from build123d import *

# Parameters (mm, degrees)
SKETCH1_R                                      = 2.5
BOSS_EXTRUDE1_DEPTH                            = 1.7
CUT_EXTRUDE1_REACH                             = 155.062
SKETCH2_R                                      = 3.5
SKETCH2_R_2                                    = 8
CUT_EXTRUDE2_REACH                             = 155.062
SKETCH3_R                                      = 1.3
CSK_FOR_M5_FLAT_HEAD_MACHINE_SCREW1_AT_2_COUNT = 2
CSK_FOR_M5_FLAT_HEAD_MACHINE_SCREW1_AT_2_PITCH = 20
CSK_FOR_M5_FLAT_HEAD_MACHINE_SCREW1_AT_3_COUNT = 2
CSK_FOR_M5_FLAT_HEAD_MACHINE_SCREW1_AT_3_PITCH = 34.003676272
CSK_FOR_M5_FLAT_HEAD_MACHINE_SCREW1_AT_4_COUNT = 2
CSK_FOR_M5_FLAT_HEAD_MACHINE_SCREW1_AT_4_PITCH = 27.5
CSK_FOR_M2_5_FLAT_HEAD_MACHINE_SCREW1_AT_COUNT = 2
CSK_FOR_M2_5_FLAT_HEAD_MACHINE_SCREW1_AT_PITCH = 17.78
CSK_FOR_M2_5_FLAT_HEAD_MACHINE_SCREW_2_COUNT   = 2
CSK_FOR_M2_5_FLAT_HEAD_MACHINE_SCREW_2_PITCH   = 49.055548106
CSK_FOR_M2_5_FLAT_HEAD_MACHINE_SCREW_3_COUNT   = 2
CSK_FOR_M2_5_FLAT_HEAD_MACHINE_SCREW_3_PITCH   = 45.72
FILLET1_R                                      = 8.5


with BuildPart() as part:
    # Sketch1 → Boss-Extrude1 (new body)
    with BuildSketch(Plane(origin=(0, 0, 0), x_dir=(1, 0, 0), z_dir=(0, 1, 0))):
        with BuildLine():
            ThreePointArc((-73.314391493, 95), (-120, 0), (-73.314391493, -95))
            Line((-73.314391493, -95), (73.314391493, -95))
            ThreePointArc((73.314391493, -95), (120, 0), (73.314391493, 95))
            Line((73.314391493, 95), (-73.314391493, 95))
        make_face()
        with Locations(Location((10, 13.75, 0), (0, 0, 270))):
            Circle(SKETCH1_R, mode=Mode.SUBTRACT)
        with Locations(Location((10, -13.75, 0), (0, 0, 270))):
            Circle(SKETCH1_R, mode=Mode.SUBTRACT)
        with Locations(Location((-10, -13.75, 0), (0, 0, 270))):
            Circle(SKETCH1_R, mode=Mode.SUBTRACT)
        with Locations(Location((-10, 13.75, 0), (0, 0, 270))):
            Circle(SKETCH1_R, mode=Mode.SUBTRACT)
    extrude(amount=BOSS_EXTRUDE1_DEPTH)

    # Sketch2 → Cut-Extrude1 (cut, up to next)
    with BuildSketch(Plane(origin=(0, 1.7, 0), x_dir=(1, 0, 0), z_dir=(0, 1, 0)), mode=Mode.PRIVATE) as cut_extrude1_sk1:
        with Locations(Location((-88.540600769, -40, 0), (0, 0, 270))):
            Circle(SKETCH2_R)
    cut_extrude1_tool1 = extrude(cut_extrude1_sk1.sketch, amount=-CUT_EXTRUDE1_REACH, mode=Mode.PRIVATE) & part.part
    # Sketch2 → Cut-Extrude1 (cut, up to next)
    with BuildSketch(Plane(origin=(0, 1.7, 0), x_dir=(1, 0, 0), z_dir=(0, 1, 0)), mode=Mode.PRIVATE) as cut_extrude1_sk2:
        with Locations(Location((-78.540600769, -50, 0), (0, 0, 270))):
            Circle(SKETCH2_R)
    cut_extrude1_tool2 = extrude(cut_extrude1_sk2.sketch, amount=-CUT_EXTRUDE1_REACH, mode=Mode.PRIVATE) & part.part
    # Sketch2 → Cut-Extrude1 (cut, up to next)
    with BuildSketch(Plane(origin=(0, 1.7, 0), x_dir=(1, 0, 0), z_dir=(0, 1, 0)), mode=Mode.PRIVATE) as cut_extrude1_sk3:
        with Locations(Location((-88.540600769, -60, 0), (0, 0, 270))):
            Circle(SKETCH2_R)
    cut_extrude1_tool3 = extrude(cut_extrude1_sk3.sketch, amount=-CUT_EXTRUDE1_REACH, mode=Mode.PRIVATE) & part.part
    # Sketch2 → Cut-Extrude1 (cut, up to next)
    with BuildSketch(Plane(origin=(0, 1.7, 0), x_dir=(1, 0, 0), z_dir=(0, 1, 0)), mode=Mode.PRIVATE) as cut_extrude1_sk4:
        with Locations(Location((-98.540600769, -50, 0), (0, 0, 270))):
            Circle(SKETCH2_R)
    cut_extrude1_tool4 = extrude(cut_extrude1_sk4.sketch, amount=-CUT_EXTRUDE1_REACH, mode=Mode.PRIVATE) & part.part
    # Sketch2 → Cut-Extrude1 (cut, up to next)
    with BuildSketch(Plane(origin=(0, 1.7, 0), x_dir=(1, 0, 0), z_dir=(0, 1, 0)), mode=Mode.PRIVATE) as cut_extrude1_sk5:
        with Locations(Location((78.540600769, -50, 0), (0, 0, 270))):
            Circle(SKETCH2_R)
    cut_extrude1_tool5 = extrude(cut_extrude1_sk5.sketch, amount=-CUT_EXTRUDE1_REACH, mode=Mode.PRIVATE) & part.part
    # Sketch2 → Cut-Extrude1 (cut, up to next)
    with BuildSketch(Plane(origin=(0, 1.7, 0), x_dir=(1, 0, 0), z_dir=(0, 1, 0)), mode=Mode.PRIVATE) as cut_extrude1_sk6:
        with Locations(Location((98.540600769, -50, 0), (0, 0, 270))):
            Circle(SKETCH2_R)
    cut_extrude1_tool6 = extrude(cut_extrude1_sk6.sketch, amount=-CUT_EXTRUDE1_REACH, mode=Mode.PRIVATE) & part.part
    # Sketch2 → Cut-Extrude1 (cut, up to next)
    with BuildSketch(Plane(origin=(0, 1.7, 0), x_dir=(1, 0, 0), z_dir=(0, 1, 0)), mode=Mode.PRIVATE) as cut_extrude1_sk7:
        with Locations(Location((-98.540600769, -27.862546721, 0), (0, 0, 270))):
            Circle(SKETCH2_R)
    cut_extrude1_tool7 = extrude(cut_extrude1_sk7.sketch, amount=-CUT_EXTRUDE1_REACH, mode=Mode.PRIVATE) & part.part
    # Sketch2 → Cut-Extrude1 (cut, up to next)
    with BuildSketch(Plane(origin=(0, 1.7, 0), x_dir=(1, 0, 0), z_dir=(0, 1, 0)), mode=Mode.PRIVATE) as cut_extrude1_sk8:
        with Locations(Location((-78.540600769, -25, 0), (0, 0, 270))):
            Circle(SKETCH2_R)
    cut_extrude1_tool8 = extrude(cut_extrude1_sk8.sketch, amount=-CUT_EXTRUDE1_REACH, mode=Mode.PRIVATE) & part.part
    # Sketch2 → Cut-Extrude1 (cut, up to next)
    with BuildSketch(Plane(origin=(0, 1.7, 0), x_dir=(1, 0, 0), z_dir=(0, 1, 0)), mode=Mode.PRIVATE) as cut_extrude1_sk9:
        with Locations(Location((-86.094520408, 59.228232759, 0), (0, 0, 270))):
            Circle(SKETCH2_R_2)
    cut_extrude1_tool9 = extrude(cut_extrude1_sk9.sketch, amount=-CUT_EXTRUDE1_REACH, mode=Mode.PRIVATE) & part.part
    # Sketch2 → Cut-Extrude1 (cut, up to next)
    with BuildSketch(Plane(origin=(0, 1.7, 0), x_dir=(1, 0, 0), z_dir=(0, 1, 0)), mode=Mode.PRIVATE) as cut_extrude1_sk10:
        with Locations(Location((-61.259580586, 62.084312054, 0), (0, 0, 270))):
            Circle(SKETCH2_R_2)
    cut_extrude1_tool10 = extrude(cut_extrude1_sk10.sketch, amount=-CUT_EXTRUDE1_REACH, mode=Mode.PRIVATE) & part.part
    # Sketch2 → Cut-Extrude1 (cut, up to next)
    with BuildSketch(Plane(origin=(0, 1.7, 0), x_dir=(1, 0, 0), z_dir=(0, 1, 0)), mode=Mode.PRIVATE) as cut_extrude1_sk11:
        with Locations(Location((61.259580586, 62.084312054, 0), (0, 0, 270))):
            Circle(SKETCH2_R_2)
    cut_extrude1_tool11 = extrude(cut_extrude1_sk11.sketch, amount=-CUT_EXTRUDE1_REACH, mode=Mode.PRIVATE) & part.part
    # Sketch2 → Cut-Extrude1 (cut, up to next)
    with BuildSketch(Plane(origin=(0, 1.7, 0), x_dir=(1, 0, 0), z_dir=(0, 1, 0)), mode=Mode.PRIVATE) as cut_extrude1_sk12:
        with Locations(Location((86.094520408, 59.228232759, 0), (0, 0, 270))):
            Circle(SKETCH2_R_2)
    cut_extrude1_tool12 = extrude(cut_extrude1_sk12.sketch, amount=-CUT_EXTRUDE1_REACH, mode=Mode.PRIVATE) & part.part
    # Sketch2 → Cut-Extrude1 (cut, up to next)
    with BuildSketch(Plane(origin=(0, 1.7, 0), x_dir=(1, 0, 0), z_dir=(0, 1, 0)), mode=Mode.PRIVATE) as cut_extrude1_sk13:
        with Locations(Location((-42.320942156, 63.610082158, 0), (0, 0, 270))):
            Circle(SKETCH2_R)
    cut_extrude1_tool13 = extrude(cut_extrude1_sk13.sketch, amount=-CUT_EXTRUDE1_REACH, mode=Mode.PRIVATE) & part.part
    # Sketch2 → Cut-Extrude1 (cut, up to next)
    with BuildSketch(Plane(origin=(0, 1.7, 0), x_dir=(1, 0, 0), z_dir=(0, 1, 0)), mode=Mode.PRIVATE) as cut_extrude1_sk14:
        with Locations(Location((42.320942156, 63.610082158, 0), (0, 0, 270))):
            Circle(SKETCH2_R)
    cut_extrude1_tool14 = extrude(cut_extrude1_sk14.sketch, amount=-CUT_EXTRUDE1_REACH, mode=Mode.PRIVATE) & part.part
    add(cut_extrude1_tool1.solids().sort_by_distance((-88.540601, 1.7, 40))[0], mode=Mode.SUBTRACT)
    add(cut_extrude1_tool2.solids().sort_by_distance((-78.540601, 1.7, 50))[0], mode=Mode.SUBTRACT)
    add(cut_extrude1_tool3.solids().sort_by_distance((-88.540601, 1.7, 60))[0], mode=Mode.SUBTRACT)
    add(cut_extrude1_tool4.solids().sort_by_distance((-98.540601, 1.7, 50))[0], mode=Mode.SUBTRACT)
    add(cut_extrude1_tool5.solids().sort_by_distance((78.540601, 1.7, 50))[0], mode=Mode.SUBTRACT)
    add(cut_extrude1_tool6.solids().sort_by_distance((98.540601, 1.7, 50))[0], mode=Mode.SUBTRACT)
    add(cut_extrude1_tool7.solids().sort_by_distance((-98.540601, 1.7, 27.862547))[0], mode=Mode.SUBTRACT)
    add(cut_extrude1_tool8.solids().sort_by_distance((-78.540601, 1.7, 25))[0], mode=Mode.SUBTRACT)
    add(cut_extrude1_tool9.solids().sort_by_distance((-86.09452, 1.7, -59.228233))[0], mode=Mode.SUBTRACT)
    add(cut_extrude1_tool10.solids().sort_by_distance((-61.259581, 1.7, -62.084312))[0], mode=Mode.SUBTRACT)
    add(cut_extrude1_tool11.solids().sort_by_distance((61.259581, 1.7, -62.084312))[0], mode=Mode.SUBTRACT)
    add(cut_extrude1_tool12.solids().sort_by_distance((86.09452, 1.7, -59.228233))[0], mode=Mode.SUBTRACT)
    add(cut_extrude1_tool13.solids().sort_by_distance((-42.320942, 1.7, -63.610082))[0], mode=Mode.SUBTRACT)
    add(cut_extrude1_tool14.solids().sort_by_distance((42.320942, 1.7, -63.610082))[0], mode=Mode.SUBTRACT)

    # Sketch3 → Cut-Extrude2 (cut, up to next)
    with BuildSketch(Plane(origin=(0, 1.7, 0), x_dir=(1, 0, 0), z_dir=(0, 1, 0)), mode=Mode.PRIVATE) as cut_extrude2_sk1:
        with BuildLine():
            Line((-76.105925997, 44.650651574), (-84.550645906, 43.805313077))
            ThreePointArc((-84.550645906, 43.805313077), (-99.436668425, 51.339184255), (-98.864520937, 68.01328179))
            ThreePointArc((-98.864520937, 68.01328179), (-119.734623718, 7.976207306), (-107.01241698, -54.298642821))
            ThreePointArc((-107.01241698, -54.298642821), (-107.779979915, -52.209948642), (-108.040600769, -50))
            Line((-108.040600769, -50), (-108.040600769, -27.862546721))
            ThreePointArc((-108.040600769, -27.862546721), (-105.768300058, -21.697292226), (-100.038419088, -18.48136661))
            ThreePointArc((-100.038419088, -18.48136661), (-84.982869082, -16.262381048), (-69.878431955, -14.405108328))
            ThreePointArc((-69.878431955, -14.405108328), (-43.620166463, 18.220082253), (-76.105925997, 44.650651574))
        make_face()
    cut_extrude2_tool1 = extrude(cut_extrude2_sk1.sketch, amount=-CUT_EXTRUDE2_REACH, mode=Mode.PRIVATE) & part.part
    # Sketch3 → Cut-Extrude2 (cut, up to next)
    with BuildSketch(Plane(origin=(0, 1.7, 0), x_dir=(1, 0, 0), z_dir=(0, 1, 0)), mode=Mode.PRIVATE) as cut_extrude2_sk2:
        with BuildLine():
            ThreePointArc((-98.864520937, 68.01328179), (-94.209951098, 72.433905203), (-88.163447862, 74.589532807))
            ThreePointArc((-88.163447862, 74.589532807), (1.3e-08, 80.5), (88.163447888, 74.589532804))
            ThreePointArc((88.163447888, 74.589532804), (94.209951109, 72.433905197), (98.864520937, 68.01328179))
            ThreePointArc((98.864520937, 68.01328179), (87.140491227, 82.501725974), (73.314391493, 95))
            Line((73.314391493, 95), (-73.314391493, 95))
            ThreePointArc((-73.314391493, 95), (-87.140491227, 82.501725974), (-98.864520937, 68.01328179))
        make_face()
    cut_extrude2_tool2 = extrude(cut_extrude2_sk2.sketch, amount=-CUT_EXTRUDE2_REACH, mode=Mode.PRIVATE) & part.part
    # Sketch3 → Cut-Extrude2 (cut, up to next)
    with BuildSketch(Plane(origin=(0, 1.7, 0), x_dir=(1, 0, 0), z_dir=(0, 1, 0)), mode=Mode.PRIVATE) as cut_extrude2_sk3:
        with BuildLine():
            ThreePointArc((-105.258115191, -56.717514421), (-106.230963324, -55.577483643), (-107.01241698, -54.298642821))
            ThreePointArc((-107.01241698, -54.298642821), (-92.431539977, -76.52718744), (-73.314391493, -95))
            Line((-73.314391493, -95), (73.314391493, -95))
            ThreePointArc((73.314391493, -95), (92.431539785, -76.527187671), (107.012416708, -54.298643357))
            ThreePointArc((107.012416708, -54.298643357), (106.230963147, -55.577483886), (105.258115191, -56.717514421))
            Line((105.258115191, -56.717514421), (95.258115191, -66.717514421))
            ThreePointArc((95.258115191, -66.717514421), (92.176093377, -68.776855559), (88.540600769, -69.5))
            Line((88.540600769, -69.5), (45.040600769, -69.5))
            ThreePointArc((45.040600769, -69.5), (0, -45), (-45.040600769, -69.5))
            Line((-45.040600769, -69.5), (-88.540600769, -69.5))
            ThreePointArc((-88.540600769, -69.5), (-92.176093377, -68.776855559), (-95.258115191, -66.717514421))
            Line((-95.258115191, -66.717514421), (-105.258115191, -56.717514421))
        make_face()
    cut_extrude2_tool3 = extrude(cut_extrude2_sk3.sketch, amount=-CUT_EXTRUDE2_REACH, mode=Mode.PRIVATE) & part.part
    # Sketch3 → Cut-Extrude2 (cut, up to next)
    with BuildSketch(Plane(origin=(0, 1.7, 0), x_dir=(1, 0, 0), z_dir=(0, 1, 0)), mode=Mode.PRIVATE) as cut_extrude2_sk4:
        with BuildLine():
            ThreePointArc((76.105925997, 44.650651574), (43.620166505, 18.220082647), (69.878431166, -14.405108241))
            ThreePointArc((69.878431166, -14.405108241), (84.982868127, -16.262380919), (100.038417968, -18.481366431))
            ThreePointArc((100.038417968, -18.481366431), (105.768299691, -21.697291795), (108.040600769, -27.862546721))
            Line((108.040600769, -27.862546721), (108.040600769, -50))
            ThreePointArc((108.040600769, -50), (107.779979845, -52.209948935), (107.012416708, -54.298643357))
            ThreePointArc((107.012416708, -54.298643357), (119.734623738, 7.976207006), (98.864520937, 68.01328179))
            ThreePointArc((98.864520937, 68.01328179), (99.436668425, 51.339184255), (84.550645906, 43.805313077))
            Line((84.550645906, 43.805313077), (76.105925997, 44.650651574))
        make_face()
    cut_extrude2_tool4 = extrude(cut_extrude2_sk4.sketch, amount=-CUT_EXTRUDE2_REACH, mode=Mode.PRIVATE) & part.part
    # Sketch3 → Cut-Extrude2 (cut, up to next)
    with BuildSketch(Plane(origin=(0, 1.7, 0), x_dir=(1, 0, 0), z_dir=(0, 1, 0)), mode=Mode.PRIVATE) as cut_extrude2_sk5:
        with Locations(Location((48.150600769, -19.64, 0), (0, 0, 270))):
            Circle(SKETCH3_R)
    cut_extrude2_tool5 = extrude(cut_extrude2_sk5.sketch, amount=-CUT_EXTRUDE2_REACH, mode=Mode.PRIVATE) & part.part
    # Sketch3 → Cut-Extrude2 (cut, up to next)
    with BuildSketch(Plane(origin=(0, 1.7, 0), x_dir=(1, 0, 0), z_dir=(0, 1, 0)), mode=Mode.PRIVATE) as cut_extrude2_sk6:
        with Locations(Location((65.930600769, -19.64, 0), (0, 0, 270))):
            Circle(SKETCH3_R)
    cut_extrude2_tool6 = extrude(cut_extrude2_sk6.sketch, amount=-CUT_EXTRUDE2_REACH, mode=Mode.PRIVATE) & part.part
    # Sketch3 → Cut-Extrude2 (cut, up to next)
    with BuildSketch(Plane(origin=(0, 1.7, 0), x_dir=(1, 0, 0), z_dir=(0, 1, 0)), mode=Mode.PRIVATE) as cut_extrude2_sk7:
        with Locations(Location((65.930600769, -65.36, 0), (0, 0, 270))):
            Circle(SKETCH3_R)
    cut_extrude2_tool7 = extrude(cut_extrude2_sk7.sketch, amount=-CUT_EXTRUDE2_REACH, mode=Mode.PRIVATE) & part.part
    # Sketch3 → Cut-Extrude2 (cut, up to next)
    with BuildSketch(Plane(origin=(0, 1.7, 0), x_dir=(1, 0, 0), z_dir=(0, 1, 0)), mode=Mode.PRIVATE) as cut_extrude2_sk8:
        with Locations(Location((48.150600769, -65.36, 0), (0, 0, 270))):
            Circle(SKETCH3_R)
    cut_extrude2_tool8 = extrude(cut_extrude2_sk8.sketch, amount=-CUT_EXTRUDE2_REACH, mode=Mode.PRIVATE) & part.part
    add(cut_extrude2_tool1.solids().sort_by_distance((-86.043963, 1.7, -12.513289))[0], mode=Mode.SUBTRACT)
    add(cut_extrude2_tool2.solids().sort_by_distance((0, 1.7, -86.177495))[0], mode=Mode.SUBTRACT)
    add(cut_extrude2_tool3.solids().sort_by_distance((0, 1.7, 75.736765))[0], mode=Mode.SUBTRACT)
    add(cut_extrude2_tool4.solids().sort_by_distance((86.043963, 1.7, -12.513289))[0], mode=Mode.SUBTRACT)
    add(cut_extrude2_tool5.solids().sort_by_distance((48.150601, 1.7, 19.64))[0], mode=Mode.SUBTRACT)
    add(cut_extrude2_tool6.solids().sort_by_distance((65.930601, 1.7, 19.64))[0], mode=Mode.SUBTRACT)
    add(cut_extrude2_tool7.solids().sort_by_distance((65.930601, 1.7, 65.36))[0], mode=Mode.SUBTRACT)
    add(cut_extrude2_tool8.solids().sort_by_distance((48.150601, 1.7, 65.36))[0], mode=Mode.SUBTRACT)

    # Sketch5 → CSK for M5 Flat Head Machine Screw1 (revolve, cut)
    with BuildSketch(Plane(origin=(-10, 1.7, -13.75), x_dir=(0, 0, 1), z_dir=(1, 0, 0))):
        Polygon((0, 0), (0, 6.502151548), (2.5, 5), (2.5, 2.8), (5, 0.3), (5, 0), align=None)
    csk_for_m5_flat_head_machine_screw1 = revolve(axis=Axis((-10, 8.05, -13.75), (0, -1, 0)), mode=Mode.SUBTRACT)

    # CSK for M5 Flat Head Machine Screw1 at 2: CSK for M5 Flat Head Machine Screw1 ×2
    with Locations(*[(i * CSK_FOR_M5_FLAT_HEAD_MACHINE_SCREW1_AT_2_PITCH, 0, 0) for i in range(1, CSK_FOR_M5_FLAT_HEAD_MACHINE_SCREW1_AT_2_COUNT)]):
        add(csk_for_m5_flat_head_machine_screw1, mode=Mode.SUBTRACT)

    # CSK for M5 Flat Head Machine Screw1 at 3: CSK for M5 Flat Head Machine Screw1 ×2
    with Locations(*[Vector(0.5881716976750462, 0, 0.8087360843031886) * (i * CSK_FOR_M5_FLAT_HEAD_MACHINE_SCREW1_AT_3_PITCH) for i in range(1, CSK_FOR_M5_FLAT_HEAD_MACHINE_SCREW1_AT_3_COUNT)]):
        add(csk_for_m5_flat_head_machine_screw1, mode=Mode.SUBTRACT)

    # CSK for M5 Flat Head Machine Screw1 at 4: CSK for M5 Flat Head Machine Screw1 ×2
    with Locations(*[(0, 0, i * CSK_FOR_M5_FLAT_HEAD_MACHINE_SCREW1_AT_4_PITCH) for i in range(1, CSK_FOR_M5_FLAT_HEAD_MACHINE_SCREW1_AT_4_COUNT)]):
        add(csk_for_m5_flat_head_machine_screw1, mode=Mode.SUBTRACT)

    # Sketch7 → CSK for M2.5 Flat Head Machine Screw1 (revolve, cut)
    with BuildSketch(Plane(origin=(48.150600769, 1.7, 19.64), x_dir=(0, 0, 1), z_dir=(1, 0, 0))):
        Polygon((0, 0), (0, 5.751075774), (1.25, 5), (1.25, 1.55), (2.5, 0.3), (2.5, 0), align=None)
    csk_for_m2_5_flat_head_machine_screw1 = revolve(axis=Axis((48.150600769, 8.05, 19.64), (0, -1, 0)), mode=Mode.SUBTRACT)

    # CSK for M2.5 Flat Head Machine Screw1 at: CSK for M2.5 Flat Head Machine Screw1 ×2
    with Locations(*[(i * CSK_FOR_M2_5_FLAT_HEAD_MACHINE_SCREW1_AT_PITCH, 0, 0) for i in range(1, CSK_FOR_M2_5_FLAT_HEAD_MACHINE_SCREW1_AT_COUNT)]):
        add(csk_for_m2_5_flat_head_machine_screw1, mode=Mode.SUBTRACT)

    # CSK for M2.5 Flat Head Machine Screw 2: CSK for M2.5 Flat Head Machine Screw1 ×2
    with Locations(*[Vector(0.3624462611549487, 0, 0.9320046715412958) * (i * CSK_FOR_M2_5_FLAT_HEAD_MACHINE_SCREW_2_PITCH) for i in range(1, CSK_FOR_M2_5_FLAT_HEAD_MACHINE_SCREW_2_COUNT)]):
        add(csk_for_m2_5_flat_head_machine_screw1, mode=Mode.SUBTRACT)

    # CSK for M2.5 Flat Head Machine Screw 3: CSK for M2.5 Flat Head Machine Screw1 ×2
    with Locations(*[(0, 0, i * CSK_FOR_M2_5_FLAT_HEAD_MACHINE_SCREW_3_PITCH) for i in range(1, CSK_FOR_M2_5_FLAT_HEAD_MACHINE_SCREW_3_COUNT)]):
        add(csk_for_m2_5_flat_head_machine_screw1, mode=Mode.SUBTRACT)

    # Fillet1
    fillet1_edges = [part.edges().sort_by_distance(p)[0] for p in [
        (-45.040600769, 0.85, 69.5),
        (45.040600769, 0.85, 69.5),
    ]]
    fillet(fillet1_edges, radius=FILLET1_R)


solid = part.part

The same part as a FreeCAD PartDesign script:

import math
import FreeCAD as App
import Part
import Sketcher

V = App.Vector
Q = App.Units.Quantity


def edges_at(feature, points):
    """Names of the edges that pass closest to the given points."""
    edges = feature.Shape.Edges
    near = lambda p: min(range(len(edges)), key=lambda i: edges[i].distToShape(Part.Vertex(*p))[0])
    return sorted({f"Edge{near(p) + 1}" for p in points})


def add_polygon(sketch, points):
    """Adds a closed chain of lines whose ends are joined by coincident constraints."""
    first, n = sketch.GeometryCount, len(points)
    for a, b in zip(points, points[1:] + points[:1]):
        sketch.addGeometry(Part.LineSegment(App.Vector(*a, 0), App.Vector(*b, 0)), False)
    for i in range(n):
        sketch.addConstraint(Sketcher.Constraint("Coincident", first + i, 2, first + (i + 1) % n, 1))

doc = App.newDocument("Part")
body = doc.addObject("PartDesign::Body", "Body")

# Sketch on XZ plane
sketch1 = body.newObject("Sketcher::SketchObject", "Sketch")
sketch1.AttachmentSupport = (doc.getObject("XZ_Plane"), [""])
sketch1.MapMode = "FlatFace"
sketch1.addGeometry(Part.ArcOfCircle(Part.Circle(V(0, 0, 0), V(0, 0, 1), 120), math.radians(128), math.radians(232)), False)
sketch1.addGeometry(Part.LineSegment(V(-73.3, 95, 0), V(73.3, 95, 0)), False)
sketch1.addGeometry(Part.ArcOfCircle(Part.Circle(V(0, 0, 0), V(0, 0, 1), 120), math.radians(-52), math.radians(52)), False)
sketch1.addGeometry(Part.LineSegment(V(73.3, -95, 0), V(-73.3, -95, 0)), False)
sketch1.addGeometry(Part.Circle(V(-10, 13.8, 0), V(0, 0, 1), 2.5), False)
sketch1.addGeometry(Part.Circle(V(10, 13.8, 0), V(0, 0, 1), 2.5), False)
sketch1.addGeometry(Part.Circle(V(-10, -13.8, 0), V(0, 0, 1), 2.5), False)
sketch1.addGeometry(Part.Circle(V(10, -13.8, 0), V(0, 0, 1), 2.5), False)
sketch1.addConstraint(Sketcher.Constraint("Coincident", 0, 1, 1, 1))
sketch1.addConstraint(Sketcher.Constraint("Coincident", 1, 2, 2, 2))
sketch1.addConstraint(Sketcher.Constraint("Coincident", 2, 1, 3, 1))
sketch1.addConstraint(Sketcher.Constraint("Coincident", 3, 2, 0, 2))
sketch1.addConstraint(Sketcher.Constraint("Horizontal", 1))
sketch1.addConstraint(Sketcher.Constraint("Horizontal", 3))
sketch1.addConstraint(Sketcher.Constraint("Coincident", 0, 3, -1, 1))
sketch1.addConstraint(Sketcher.Constraint("Coincident", 2, 3, -1, 1))
sketch1.addConstraint(Sketcher.Constraint("Equal", 0, 2))
sketch1.addConstraint(Sketcher.Constraint("Equal", 4, 5))
sketch1.addConstraint(Sketcher.Constraint("Equal", 5, 6))
sketch1.addConstraint(Sketcher.Constraint("Equal", 6, 7))
sketch1.addConstraint(Sketcher.Constraint("Symmetric", 5, 3, 6, 3, -1, 1))
sketch1.addConstraint(Sketcher.Constraint("Symmetric", 4, 3, 7, 3, -1, 1))
sketch1.addConstraint(Sketcher.Constraint("Symmetric", 4, 3, 5, 3, -2))
sketch1.addConstraint(Sketcher.Constraint("Vertical", 1, 2, 2, 1))
sketch1.addConstraint(Sketcher.Constraint("Diameter", 4, Q("5 mm")))
sketch1.addConstraint(Sketcher.Constraint("Radius", 0, Q("120 mm")))
sketch1.addConstraint(Sketcher.Constraint("DistanceX", 4, 3, -1, 1, Q("10 mm")))
sketch1.addConstraint(Sketcher.Constraint("DistanceY", -1, 1, 0, 1, Q("95 mm")))
sketch1.addConstraint(Sketcher.Constraint("DistanceY", 6, 3, 4, 3, Q("27.5 mm")))
pad1 = body.newObject("PartDesign::Pad", "Pad")
pad1.Profile = sketch1
pad1.Length = 1.7
pad1.Reversed = True

# Sketch on XZ plane
sketch2 = body.newObject("Sketcher::SketchObject", "Sketch001")
sketch2.AttachmentSupport = (doc.getObject("XZ_Plane"), [""])
sketch2.MapMode = "FlatFace"
sketch2.AttachmentOffset = App.Placement(V(0, 0, -1.7), App.Rotation())
sketch2.addGeometry(Part.Circle(V(-88.5, 40, 0), V(0, 0, 1), 3.5), False)
sketch2.addConstraint(Sketcher.Constraint("Diameter", 0, Q("7 mm")))
sketch2.addConstraint(Sketcher.Constraint("DistanceY", -1, 1, 0, 3, Q("40 mm")))
sketch2.addConstraint(Sketcher.Constraint("DistanceX", 0, 3, -1, 1, Q("88.540601 mm")))
pocket1 = body.newObject("PartDesign::Pocket", "Pocket")
pocket1.Profile = sketch2
pocket1.Type = "UpToFirst"
pocket1.Reversed = True

# Sketch on XZ plane
sketch3 = body.newObject("Sketcher::SketchObject", "Sketch002")
sketch3.AttachmentSupport = (doc.getObject("XZ_Plane"), [""])
sketch3.MapMode = "FlatFace"
sketch3.AttachmentOffset = App.Placement(V(0, 0, -1.7), App.Rotation())
sketch3.addGeometry(Part.Circle(V(-78.5, 50, 0), V(0, 0, 1), 3.5), False)
sketch3.addConstraint(Sketcher.Constraint("Diameter", 0, Q("7 mm")))
sketch3.addConstraint(Sketcher.Constraint("DistanceY", -1, 1, 0, 3, Q("50 mm")))
sketch3.addConstraint(Sketcher.Constraint("DistanceX", 0, 3, -1, 1, Q("78.540601 mm")))
pocket2 = body.newObject("PartDesign::Pocket", "Pocket001")
pocket2.Profile = sketch3
pocket2.Type = "UpToFirst"
pocket2.Reversed = True

# Sketch on XZ plane
sketch4 = body.newObject("Sketcher::SketchObject", "Sketch003")
sketch4.AttachmentSupport = (doc.getObject("XZ_Plane"), [""])
sketch4.MapMode = "FlatFace"
sketch4.AttachmentOffset = App.Placement(V(0, 0, -1.7), App.Rotation())
sketch4.addGeometry(Part.Circle(V(-88.5, 60, 0), V(0, 0, 1), 3.5), False)
sketch4.addConstraint(Sketcher.Constraint("Diameter", 0, Q("7 mm")))
sketch4.addConstraint(Sketcher.Constraint("DistanceY", -1, 1, 0, 3, Q("60 mm")))
sketch4.addConstraint(Sketcher.Constraint("DistanceX", 0, 3, -1, 1, Q("88.540601 mm")))
pocket3 = body.newObject("PartDesign::Pocket", "Pocket002")
pocket3.Profile = sketch4
pocket3.Type = "UpToFirst"
pocket3.Reversed = True

# Sketch on XZ plane
sketch5 = body.newObject("Sketcher::SketchObject", "Sketch004")
sketch5.AttachmentSupport = (doc.getObject("XZ_Plane"), [""])
sketch5.MapMode = "FlatFace"
sketch5.AttachmentOffset = App.Placement(V(0, 0, -1.7), App.Rotation())
sketch5.addGeometry(Part.Circle(V(-98.5, 50, 0), V(0, 0, 1), 3.5), False)
sketch5.addConstraint(Sketcher.Constraint("Diameter", 0, Q("7 mm")))
sketch5.addConstraint(Sketcher.Constraint("DistanceY", -1, 1, 0, 3, Q("50 mm")))
sketch5.addConstraint(Sketcher.Constraint("DistanceX", 0, 3, -1, 1, Q("98.540601 mm")))
pocket4 = body.newObject("PartDesign::Pocket", "Pocket003")
pocket4.Profile = sketch5
pocket4.Type = "UpToFirst"
pocket4.Reversed = True

# Sketch on XZ plane
sketch6 = body.newObject("Sketcher::SketchObject", "Sketch005")
sketch6.AttachmentSupport = (doc.getObject("XZ_Plane"), [""])
sketch6.MapMode = "FlatFace"
sketch6.AttachmentOffset = App.Placement(V(0, 0, -1.7), App.Rotation())
sketch6.addGeometry(Part.Circle(V(78.5, 50, 0), V(0, 0, 1), 3.5), False)
sketch6.addConstraint(Sketcher.Constraint("Diameter", 0, Q("7 mm")))
sketch6.addConstraint(Sketcher.Constraint("DistanceY", -1, 1, 0, 3, Q("50 mm")))
sketch6.addConstraint(Sketcher.Constraint("DistanceX", -1, 1, 0, 3, Q("78.540601 mm")))
pocket5 = body.newObject("PartDesign::Pocket", "Pocket004")
pocket5.Profile = sketch6
pocket5.Type = "UpToFirst"
pocket5.Reversed = True

# Sketch on XZ plane
sketch7 = body.newObject("Sketcher::SketchObject", "Sketch006")
sketch7.AttachmentSupport = (doc.getObject("XZ_Plane"), [""])
sketch7.MapMode = "FlatFace"
sketch7.AttachmentOffset = App.Placement(V(0, 0, -1.7), App.Rotation())
sketch7.addGeometry(Part.Circle(V(98.5, 50, 0), V(0, 0, 1), 3.5), False)
sketch7.addConstraint(Sketcher.Constraint("Diameter", 0, Q("7 mm")))
sketch7.addConstraint(Sketcher.Constraint("DistanceY", -1, 1, 0, 3, Q("50 mm")))
sketch7.addConstraint(Sketcher.Constraint("DistanceX", -1, 1, 0, 3, Q("98.540601 mm")))
pocket6 = body.newObject("PartDesign::Pocket", "Pocket005")
pocket6.Profile = sketch7
pocket6.Type = "UpToFirst"
pocket6.Reversed = True

# Sketch on XZ plane
sketch8 = body.newObject("Sketcher::SketchObject", "Sketch007")
sketch8.AttachmentSupport = (doc.getObject("XZ_Plane"), [""])
sketch8.MapMode = "FlatFace"
sketch8.AttachmentOffset = App.Placement(V(0, 0, -1.7), App.Rotation())
sketch8.addGeometry(Part.Circle(V(-98.5, 27.9, 0), V(0, 0, 1), 3.5), False)
sketch8.addConstraint(Sketcher.Constraint("Diameter", 0, Q("7 mm")))
sketch8.addConstraint(Sketcher.Constraint("DistanceX", 0, 3, -1, 1, Q("98.540601 mm")))
sketch8.addConstraint(Sketcher.Constraint("DistanceY", -1, 1, 0, 3, Q("27.862547 mm")))
pocket7 = body.newObject("PartDesign::Pocket", "Pocket006")
pocket7.Profile = sketch8
pocket7.Type = "UpToFirst"
pocket7.Reversed = True

# Sketch on XZ plane
sketch9 = body.newObject("Sketcher::SketchObject", "Sketch008")
sketch9.AttachmentSupport = (doc.getObject("XZ_Plane"), [""])
sketch9.MapMode = "FlatFace"
sketch9.AttachmentOffset = App.Placement(V(0, 0, -1.7), App.Rotation())
sketch9.addGeometry(Part.Circle(V(-78.5, 25, 0), V(0, 0, 1), 3.5), False)
sketch9.addConstraint(Sketcher.Constraint("Diameter", 0, Q("7 mm")))
sketch9.addConstraint(Sketcher.Constraint("DistanceY", -1, 1, 0, 3, Q("25 mm")))
sketch9.addConstraint(Sketcher.Constraint("DistanceX", 0, 3, -1, 1, Q("78.540601 mm")))
pocket8 = body.newObject("PartDesign::Pocket", "Pocket007")
pocket8.Profile = sketch9
pocket8.Type = "UpToFirst"
pocket8.Reversed = True

# Sketch on XZ plane
sketch10 = body.newObject("Sketcher::SketchObject", "Sketch009")
sketch10.AttachmentSupport = (doc.getObject("XZ_Plane"), [""])
sketch10.MapMode = "FlatFace"
sketch10.AttachmentOffset = App.Placement(V(0, 0, -1.7), App.Rotation())
sketch10.addGeometry(Part.Circle(V(-86, -59, 0), V(0, 0, 1), 8), False)
sketch10.addConstraint(Sketcher.Constraint("Diameter", 0, Q("16 mm")))
sketch10.addConstraint(Sketcher.Constraint("DistanceX", 0, 3, -1, 1, Q("86.09452 mm")))
sketch10.addConstraint(Sketcher.Constraint("DistanceY", 0, 3, -1, 1, Q("59.228233 mm")))
pocket9 = body.newObject("PartDesign::Pocket", "Pocket008")
pocket9.Profile = sketch10
pocket9.Type = "UpToFirst"
pocket9.Reversed = True

# Sketch on XZ plane
sketch11 = body.newObject("Sketcher::SketchObject", "Sketch010")
sketch11.AttachmentSupport = (doc.getObject("XZ_Plane"), [""])
sketch11.MapMode = "FlatFace"
sketch11.AttachmentOffset = App.Placement(V(0, 0, -1.7), App.Rotation())
sketch11.addGeometry(Part.Circle(V(-61, -62, 0), V(0, 0, 1), 8), False)
sketch11.addConstraint(Sketcher.Constraint("Diameter", 0, Q("16 mm")))
sketch11.addConstraint(Sketcher.Constraint("DistanceX", 0, 3, -1, 1, Q("61.259581 mm")))
sketch11.addConstraint(Sketcher.Constraint("DistanceY", 0, 3, -1, 1, Q("62.084312 mm")))
pocket10 = body.newObject("PartDesign::Pocket", "Pocket009")
pocket10.Profile = sketch11
pocket10.Type = "UpToFirst"
pocket10.Reversed = True

# Sketch on XZ plane
sketch12 = body.newObject("Sketcher::SketchObject", "Sketch011")
sketch12.AttachmentSupport = (doc.getObject("XZ_Plane"), [""])
sketch12.MapMode = "FlatFace"
sketch12.AttachmentOffset = App.Placement(V(0, 0, -1.7), App.Rotation())
sketch12.addGeometry(Part.Circle(V(61, -62, 0), V(0, 0, 1), 8), False)
sketch12.addConstraint(Sketcher.Constraint("Diameter", 0, Q("16 mm")))
sketch12.addConstraint(Sketcher.Constraint("DistanceX", -1, 1, 0, 3, Q("61.259581 mm")))
sketch12.addConstraint(Sketcher.Constraint("DistanceY", 0, 3, -1, 1, Q("62.084312 mm")))
pocket11 = body.newObject("PartDesign::Pocket", "Pocket010")
pocket11.Profile = sketch12
pocket11.Type = "UpToFirst"
pocket11.Reversed = True

# Sketch on XZ plane
sketch13 = body.newObject("Sketcher::SketchObject", "Sketch012")
sketch13.AttachmentSupport = (doc.getObject("XZ_Plane"), [""])
sketch13.MapMode = "FlatFace"
sketch13.AttachmentOffset = App.Placement(V(0, 0, -1.7), App.Rotation())
sketch13.addGeometry(Part.Circle(V(86, -59, 0), V(0, 0, 1), 8), False)
sketch13.addConstraint(Sketcher.Constraint("Diameter", 0, Q("16 mm")))
sketch13.addConstraint(Sketcher.Constraint("DistanceX", -1, 1, 0, 3, Q("86.09452 mm")))
sketch13.addConstraint(Sketcher.Constraint("DistanceY", 0, 3, -1, 1, Q("59.228233 mm")))
pocket12 = body.newObject("PartDesign::Pocket", "Pocket011")
pocket12.Profile = sketch13
pocket12.Type = "UpToFirst"
pocket12.Reversed = True

# Sketch on XZ plane
sketch14 = body.newObject("Sketcher::SketchObject", "Sketch013")
sketch14.AttachmentSupport = (doc.getObject("XZ_Plane"), [""])
sketch14.MapMode = "FlatFace"
sketch14.AttachmentOffset = App.Placement(V(0, 0, -1.7), App.Rotation())
sketch14.addGeometry(Part.Circle(V(-42.3, -63.6, 0), V(0, 0, 1), 3.5), False)
sketch14.addConstraint(Sketcher.Constraint("Diameter", 0, Q("7 mm")))
sketch14.addConstraint(Sketcher.Constraint("DistanceX", 0, 3, -1, 1, Q("42.320942 mm")))
sketch14.addConstraint(Sketcher.Constraint("DistanceY", 0, 3, -1, 1, Q("63.610082 mm")))
pocket13 = body.newObject("PartDesign::Pocket", "Pocket012")
pocket13.Profile = sketch14
pocket13.Type = "UpToFirst"
pocket13.Reversed = True

# Sketch on XZ plane
sketch15 = body.newObject("Sketcher::SketchObject", "Sketch014")
sketch15.AttachmentSupport = (doc.getObject("XZ_Plane"), [""])
sketch15.MapMode = "FlatFace"
sketch15.AttachmentOffset = App.Placement(V(0, 0, -1.7), App.Rotation())
sketch15.addGeometry(Part.Circle(V(42.3, -63.6, 0), V(0, 0, 1), 3.5), False)
sketch15.addConstraint(Sketcher.Constraint("Diameter", 0, Q("7 mm")))
sketch15.addConstraint(Sketcher.Constraint("DistanceX", -1, 1, 0, 3, Q("42.320942 mm")))
sketch15.addConstraint(Sketcher.Constraint("DistanceY", 0, 3, -1, 1, Q("63.610082 mm")))
pocket14 = body.newObject("PartDesign::Pocket", "Pocket013")
pocket14.Profile = sketch15
pocket14.Type = "UpToFirst"
pocket14.Reversed = True

# Sketch on XZ plane
sketch16 = body.newObject("Sketcher::SketchObject", "Sketch015")
sketch16.AttachmentSupport = (doc.getObject("XZ_Plane"), [""])
sketch16.MapMode = "FlatFace"
sketch16.AttachmentOffset = App.Placement(V(0, 0, -1.7), App.Rotation())
sketch16.addGeometry(Part.LineSegment(V(-76.1, -44.7, 0), V(-84.6, -43.8, 0)), False)
sketch16.addGeometry(Part.ArcOfCircle(Part.Circle(V(-86.1, -59.2, 0), V(0, 0, 1), 15.5), math.radians(84), math.radians(215)), False)
sketch16.addGeometry(Part.ArcOfCircle(Part.Circle(V(0, 0, 0), V(0, 0, 1), 120), math.radians(153), math.radians(215)), False)
sketch16.addGeometry(Part.ArcOfCircle(Part.Circle(V(-98.5, 50, 0), V(0, 0, 1), 9.5), math.radians(153), math.radians(180)), False)
sketch16.addGeometry(Part.LineSegment(V(-108, 50, 0), V(-108, 27.9, 0)), False)
sketch16.addGeometry(Part.ArcOfCircle(Part.Circle(V(-98.5, 27.9, 0), V(0, 0, 1), 9.5), math.radians(180), math.radians(261)), False)
sketch16.addGeometry(Part.ArcOfCircle(Part.Circle(V(0, 645, 0), V(0, 0, 1), 634.5), math.radians(-99.07), math.radians(-96.32)), False)
sketch16.addGeometry(Part.ArcOfCircle(Part.Circle(V(-73.1, -15.1, 0), V(0, 0, 1), 29.7), math.radians(-96), math.radians(84)), False)
sketch16.addConstraint(Sketcher.Constraint("Tangent", 0, 2, 1, 1))
sketch16.addConstraint(Sketcher.Constraint("Tangent", 1, 2, 2, 2))
sketch16.addConstraint(Sketcher.Constraint("Tangent", 2, 1, 3, 1))
sketch16.addConstraint(Sketcher.Constraint("Tangent", 3, 2, 4, 1))
sketch16.addConstraint(Sketcher.Constraint("Tangent", 4, 2, 5, 1))
sketch16.addConstraint(Sketcher.Constraint("Tangent", 5, 2, 6, 1))
sketch16.addConstraint(Sketcher.Constraint("Tangent", 6, 2, 7, 2))
sketch16.addConstraint(Sketcher.Constraint("Tangent", 7, 1, 0, 1))
sketch16.addConstraint(Sketcher.Constraint("Vertical", 4))
sketch16.addConstraint(Sketcher.Constraint("Coincident", 2, 3, -1, 1))
sketch16.addConstraint(Sketcher.Constraint("Equal", 3, 5))
sketch16.addConstraint(Sketcher.Constraint("PointOnObject", 6, 3, -2))
sketch16.addConstraint(Sketcher.Constraint("Radius", 2, Q("120 mm")))
sketch16.addConstraint(Sketcher.Constraint("Radius", 1, Q("15.5 mm")))
sketch16.addConstraint(Sketcher.Constraint("Radius", 3, Q("9.5 mm")))
sketch16.addConstraint(Sketcher.Constraint("Radius", 6, Q("634.5 mm")))
sketch16.addConstraint(Sketcher.Constraint("DistanceY", -1, 1, 3, 3, Q("50 mm")))
sketch16.addConstraint(Sketcher.Constraint("DistanceX", 1, 2, 1, 3, Q("12.770001 mm")))
sketch16.addConstraint(Sketcher.Constraint("Radius", 7, Q("29.692016 mm")))
sketch16.addConstraint(Sketcher.Constraint("DistanceY", 4, 2, 4, 1, Q("22.137453 mm")))
sketch16.addConstraint(Sketcher.Constraint("DistanceX", 7, 3, -1, 1, Q("73.14846 mm")))
pocket15 = body.newObject("PartDesign::Pocket", "Pocket014")
pocket15.Profile = sketch16
pocket15.Type = "UpToFirst"
pocket15.Reversed = True

# Sketch on XZ plane
sketch17 = body.newObject("Sketcher::SketchObject", "Sketch016")
sketch17.AttachmentSupport = (doc.getObject("XZ_Plane"), [""])
sketch17.MapMode = "FlatFace"
sketch17.AttachmentOffset = App.Placement(V(0, 0, -1.7), App.Rotation())
sketch17.addGeometry(Part.ArcOfCircle(Part.Circle(V(-86, -59, 0), V(0, 0, 1), 15), math.radians(-145), math.radians(-98)), False)
sketch17.addGeometry(Part.ArcOfCircle(Part.Circle(V(0, 580, 0), V(0, 0, 1), 660), math.radians(-97.67), math.radians(-82.33)), False)
sketch17.addGeometry(Part.ArcOfCircle(Part.Circle(V(86, -59, 0), V(0, 0, 1), 15), math.radians(-82), math.radians(-35)), False)
sketch17.addGeometry(Part.ArcOfCircle(Part.Circle(V(0, 0, 0), V(0, 0, 1), 120), math.radians(-52.34), math.radians(-34.53)), False)
sketch17.addGeometry(Part.LineSegment(V(73, -95, 0), V(-73, -95, 0)), False)
sketch17.addGeometry(Part.ArcOfCircle(Part.Circle(V(0, 0, 0), V(0, 0, 1), 120), math.radians(-145.47), math.radians(-127.66)), False)
sketch17.addConstraint(Sketcher.Constraint("Tangent", 0, 2, 1, 1))
sketch17.addConstraint(Sketcher.Constraint("Tangent", 1, 2, 2, 1))
sketch17.addConstraint(Sketcher.Constraint("Tangent", 2, 2, 3, 2))
sketch17.addConstraint(Sketcher.Constraint("Coincident", 3, 1, 4, 1))
sketch17.addConstraint(Sketcher.Constraint("Coincident", 4, 2, 5, 2))
sketch17.addConstraint(Sketcher.Constraint("Tangent", 5, 1, 0, 1))
sketch17.addConstraint(Sketcher.Constraint("Horizontal", 4))
sketch17.addConstraint(Sketcher.Constraint("Coincident", 3, 3, -1, 1))
sketch17.addConstraint(Sketcher.Constraint("Coincident", 5, 3, -1, 1))
sketch17.addConstraint(Sketcher.Constraint("Equal", 0, 2))
sketch17.addConstraint(Sketcher.Constraint("Equal", 3, 5))
sketch17.addConstraint(Sketcher.Constraint("PointOnObject", 1, 3, -2))
sketch17.addConstraint(Sketcher.Constraint("Radius", 3, Q("120 mm")))
sketch17.addConstraint(Sketcher.Constraint("Radius", 0, Q("15.5 mm")))
sketch17.addConstraint(Sketcher.Constraint("Radius", 1, Q("660.5 mm")))
sketch17.addConstraint(Sketcher.Constraint("DistanceY", -1, 1, 1, 3, Q("580 mm")))
sketch17.addConstraint(Sketcher.Constraint("DistanceY", 3, 1, -1, 1, Q("95 mm")))
pocket16 = body.newObject("PartDesign::Pocket", "Pocket015")
pocket16.Profile = sketch17
pocket16.Type = "UpToFirst"
pocket16.Reversed = True

# Sketch on XZ plane
sketch18 = body.newObject("Sketcher::SketchObject", "Sketch017")
sketch18.AttachmentSupport = (doc.getObject("XZ_Plane"), [""])
sketch18.MapMode = "FlatFace"
sketch18.AttachmentOffset = App.Placement(V(0, 0, -1.7), App.Rotation())
sketch18.addGeometry(Part.ArcOfCircle(Part.Circle(V(-98.5, 50, 0), V(0, 0, 1), 9.5), math.radians(135), math.radians(153.1)), False)
sketch18.addGeometry(Part.ArcOfCircle(Part.Circle(V(0, 0, 0), V(0, 0, 1), 120), math.radians(128), math.radians(153)), False)
sketch18.addGeometry(Part.LineSegment(V(-73.3, 95, 0), V(73.3, 95, 0)), False)
sketch18.addGeometry(Part.ArcOfCircle(Part.Circle(V(0, 0, 0), V(0, 0, 1), 120), math.radians(27), math.radians(52)), False)
sketch18.addGeometry(Part.ArcOfCircle(Part.Circle(V(98.5, 50, 0), V(0, 0, 1), 9.5), math.radians(26.9), math.radians(45)), False)
sketch18.addGeometry(Part.LineSegment(V(105.3, 56.7, 0), V(95.3, 66.7, 0)), False)
sketch18.addGeometry(Part.ArcOfCircle(Part.Circle(V(88.5, 60, 0), V(0, 0, 1), 9.5), math.radians(45), math.radians(90)), False)
sketch18.addGeometry(Part.LineSegment(V(88.5, 69.5, 0), V(45, 69.5, 0)), False)
sketch18.addGeometry(Part.ArcOfCircle(Part.Circle(V(0, 98.7, 0), V(0, 0, 1), 53.7), math.radians(-147), math.radians(-33)), False)
sketch18.addGeometry(Part.LineSegment(V(-45, 69.5, 0), V(-88.5, 69.5, 0)), False)
sketch18.addGeometry(Part.ArcOfCircle(Part.Circle(V(-88.5, 60, 0), V(0, 0, 1), 9.5), math.radians(90), math.radians(135)), False)
sketch18.addGeometry(Part.LineSegment(V(-95.3, 66.7, 0), V(-105.3, 56.7, 0)), False)
sketch18.addConstraint(Sketcher.Constraint("Tangent", 0, 2, 1, 2))
sketch18.addConstraint(Sketcher.Constraint("Coincident", 1, 1, 2, 1))
sketch18.addConstraint(Sketcher.Constraint("Coincident", 2, 2, 3, 2))
sketch18.addConstraint(Sketcher.Constraint("Tangent", 3, 1, 4, 1))
sketch18.addConstraint(Sketcher.Constraint("Tangent", 4, 2, 5, 1))
sketch18.addConstraint(Sketcher.Constraint("Tangent", 5, 2, 6, 1))
sketch18.addConstraint(Sketcher.Constraint("Tangent", 6, 2, 7, 1))
sketch18.addConstraint(Sketcher.Constraint("Coincident", 7, 2, 8, 2))
sketch18.addConstraint(Sketcher.Constraint("Coincident", 8, 1, 9, 1))
sketch18.addConstraint(Sketcher.Constraint("Tangent", 9, 2, 10, 1))
sketch18.addConstraint(Sketcher.Constraint("Tangent", 10, 2, 11, 1))
sketch18.addConstraint(Sketcher.Constraint("Tangent", 11, 2, 0, 1))
sketch18.addConstraint(Sketcher.Constraint("Horizontal", 2))
sketch18.addConstraint(Sketcher.Constraint("Horizontal", 7))
sketch18.addConstraint(Sketcher.Constraint("Horizontal", 9))
sketch18.addConstraint(Sketcher.Constraint("Coincident", 1, 3, -1, 1))
sketch18.addConstraint(Sketcher.Constraint("Coincident", 3, 3, -1, 1))
sketch18.addConstraint(Sketcher.Constraint("Equal", 1, 3))
sketch18.addConstraint(Sketcher.Constraint("Equal", 0, 4))
sketch18.addConstraint(Sketcher.Constraint("Equal", 4, 6))
sketch18.addConstraint(Sketcher.Constraint("Equal", 6, 10))
sketch18.addConstraint(Sketcher.Constraint("Symmetric", 6, 3, 10, 3, -2))
sketch18.addConstraint(Sketcher.Constraint("PointOnObject", 8, 3, -2))
sketch18.addConstraint(Sketcher.Constraint("Perpendicular", 5, 11))
sketch18.addConstraint(Sketcher.Constraint("Horizontal", 0, 3, 4, 3))
sketch18.addConstraint(Sketcher.Constraint("Radius", 1, Q("120 mm")))
sketch18.addConstraint(Sketcher.Constraint("Radius", 0, Q("9.5 mm")))
sketch18.addConstraint(Sketcher.Constraint("DistanceX", 7, 2, 7, 1, Q("43.5 mm")))
sketch18.addConstraint(Sketcher.Constraint("DistanceY", -1, 1, 0, 3, Q("50 mm")))
sketch18.addConstraint(Sketcher.Constraint("DistanceY", -1, 1, 6, 3, Q("60 mm")))
sketch18.addConstraint(Sketcher.Constraint("DistanceY", -1, 1, 1, 1, Q("95 mm")))
sketch18.addConstraint(Sketcher.Constraint("Radius", 8, Q("53.651137 mm")))
pocket17 = body.newObject("PartDesign::Pocket", "Pocket016")
pocket17.Profile = sketch18
pocket17.Type = "UpToFirst"
pocket17.Reversed = True

# Sketch on XZ plane
sketch19 = body.newObject("Sketcher::SketchObject", "Sketch018")
sketch19.AttachmentSupport = (doc.getObject("XZ_Plane"), [""])
sketch19.MapMode = "FlatFace"
sketch19.AttachmentOffset = App.Placement(V(0, 0, -1.7), App.Rotation())
sketch19.addGeometry(Part.ArcOfCircle(Part.Circle(V(73.1, -15.1, 0), V(0, 0, 1), 29.7), math.radians(96), math.radians(276)), False)
sketch19.addGeometry(Part.ArcOfCircle(Part.Circle(V(0, 645, 0), V(0, 0, 1), 634.5), math.radians(-83.68), math.radians(-80.93)), False)
sketch19.addGeometry(Part.ArcOfCircle(Part.Circle(V(98.5, 27.9, 0), V(0, 0, 1), 9.5), math.radians(-81), math.radians(0)), False)
sketch19.addGeometry(Part.LineSegment(V(108, 27.9, 0), V(108, 50, 0)), False)
sketch19.addGeometry(Part.ArcOfCircle(Part.Circle(V(98.5, 50, 0), V(0, 0, 1), 9.5), math.radians(0), math.radians(27)), False)
sketch19.addGeometry(Part.ArcOfCircle(Part.Circle(V(0, 0, 0), V(0, 0, 1), 120), math.radians(-35), math.radians(27)), False)
sketch19.addGeometry(Part.ArcOfCircle(Part.Circle(V(86.1, -59.2, 0), V(0, 0, 1), 15.5), math.radians(-35), math.radians(96)), False)
sketch19.addGeometry(Part.LineSegment(V(84.6, -43.8, 0), V(76.1, -44.7, 0)), False)
sketch19.addConstraint(Sketcher.Constraint("Tangent", 0, 1, 1, 1))
sketch19.addConstraint(Sketcher.Constraint("Tangent", 1, 2, 2, 1))
sketch19.addConstraint(Sketcher.Constraint("Tangent", 2, 2, 3, 1))
sketch19.addConstraint(Sketcher.Constraint("Tangent", 3, 2, 4, 1))
sketch19.addConstraint(Sketcher.Constraint("Tangent", 4, 2, 5, 2))
sketch19.addConstraint(Sketcher.Constraint("Tangent", 5, 1, 6, 1))
sketch19.addConstraint(Sketcher.Constraint("Tangent", 6, 2, 7, 1))
sketch19.addConstraint(Sketcher.Constraint("Tangent", 7, 2, 0, 2))
sketch19.addConstraint(Sketcher.Constraint("Vertical", 3))
sketch19.addConstraint(Sketcher.Constraint("Coincident", 5, 3, -1, 1))
sketch19.addConstraint(Sketcher.Constraint("Equal", 2, 4))
sketch19.addConstraint(Sketcher.Constraint("PointOnObject", 1, 3, -2))
sketch19.addConstraint(Sketcher.Constraint("Radius", 5, Q("120 mm")))
sketch19.addConstraint(Sketcher.Constraint("Radius", 1, Q("634.5 mm")))
sketch19.addConstraint(Sketcher.Constraint("Radius", 2, Q("9.5 mm")))
sketch19.addConstraint(Sketcher.Constraint("Radius", 6, Q("15.5 mm")))
sketch19.addConstraint(Sketcher.Constraint("DistanceY", -1, 1, 4, 3, Q("50 mm")))
sketch19.addConstraint(Sketcher.Constraint("Radius", 0, Q("29.692016 mm")))
sketch19.addConstraint(Sketcher.Constraint("DistanceY", 6, 3, 1, 2, Q("77.709599 mm")))
sketch19.addConstraint(Sketcher.Constraint("DistanceY", 3, 1, 3, 2, Q("22.137453 mm")))
sketch19.addConstraint(Sketcher.Constraint("DistanceX", -1, 1, 0, 3, Q("73.14846 mm")))
pocket18 = body.newObject("PartDesign::Pocket", "Pocket017")
pocket18.Profile = sketch19
pocket18.Type = "UpToFirst"
pocket18.Reversed = True

# Sketch on XZ plane
sketch20 = body.newObject("Sketcher::SketchObject", "Sketch019")
sketch20.AttachmentSupport = (doc.getObject("XZ_Plane"), [""])
sketch20.MapMode = "FlatFace"
sketch20.AttachmentOffset = App.Placement(V(0, 0, -1.7), App.Rotation())
sketch20.addGeometry(Part.Circle(V(48.2, 19.6, 0), V(0, 0, 1), 1.3), False)
sketch20.addConstraint(Sketcher.Constraint("Diameter", 0, Q("2.6 mm")))
sketch20.addConstraint(Sketcher.Constraint("DistanceY", -1, 1, 0, 3, Q("19.64 mm")))
sketch20.addConstraint(Sketcher.Constraint("DistanceX", -1, 1, 0, 3, Q("48.150601 mm")))
pocket19 = body.newObject("PartDesign::Pocket", "Pocket018")
pocket19.Profile = sketch20
pocket19.Type = "UpToFirst"
pocket19.Reversed = True

# Sketch on XZ plane
sketch21 = body.newObject("Sketcher::SketchObject", "Sketch020")
sketch21.AttachmentSupport = (doc.getObject("XZ_Plane"), [""])
sketch21.MapMode = "FlatFace"
sketch21.AttachmentOffset = App.Placement(V(0, 0, -1.7), App.Rotation())
sketch21.addGeometry(Part.Circle(V(65.9, 19.6, 0), V(0, 0, 1), 1.3), False)
sketch21.addConstraint(Sketcher.Constraint("Diameter", 0, Q("2.6 mm")))
sketch21.addConstraint(Sketcher.Constraint("DistanceY", -1, 1, 0, 3, Q("19.64 mm")))
sketch21.addConstraint(Sketcher.Constraint("DistanceX", -1, 1, 0, 3, Q("65.930601 mm")))
pocket20 = body.newObject("PartDesign::Pocket", "Pocket019")
pocket20.Profile = sketch21
pocket20.Type = "UpToFirst"
pocket20.Reversed = True

# Sketch on XZ plane
sketch22 = body.newObject("Sketcher::SketchObject", "Sketch021")
sketch22.AttachmentSupport = (doc.getObject("XZ_Plane"), [""])
sketch22.MapMode = "FlatFace"
sketch22.AttachmentOffset = App.Placement(V(0, 0, -1.7), App.Rotation())
sketch22.addGeometry(Part.Circle(V(65.9, 65.4, 0), V(0, 0, 1), 1.3), False)
sketch22.addConstraint(Sketcher.Constraint("Diameter", 0, Q("2.6 mm")))
sketch22.addConstraint(Sketcher.Constraint("DistanceY", -1, 1, 0, 3, Q("65.36 mm")))
sketch22.addConstraint(Sketcher.Constraint("DistanceX", -1, 1, 0, 3, Q("65.930601 mm")))
pocket21 = body.newObject("PartDesign::Pocket", "Pocket020")
pocket21.Profile = sketch22
pocket21.Type = "UpToFirst"
pocket21.Reversed = True

# Sketch on XZ plane
sketch23 = body.newObject("Sketcher::SketchObject", "Sketch022")
sketch23.AttachmentSupport = (doc.getObject("XZ_Plane"), [""])
sketch23.MapMode = "FlatFace"
sketch23.AttachmentOffset = App.Placement(V(0, 0, -1.7), App.Rotation())
sketch23.addGeometry(Part.Circle(V(48.2, 65.4, 0), V(0, 0, 1), 1.3), False)
sketch23.addConstraint(Sketcher.Constraint("Diameter", 0, Q("2.6 mm")))
sketch23.addConstraint(Sketcher.Constraint("DistanceY", -1, 1, 0, 3, Q("65.36 mm")))
sketch23.addConstraint(Sketcher.Constraint("DistanceX", -1, 1, 0, 3, Q("48.150601 mm")))
pocket22 = body.newObject("PartDesign::Pocket", "Pocket021")
pocket22.Profile = sketch23
pocket22.Type = "UpToFirst"
pocket22.Reversed = True

# Sketch on YZ plane
sketch24 = body.newObject("Sketcher::SketchObject", "Sketch023")
sketch24.AttachmentSupport = (doc.getObject("YZ_Plane"), [""])
sketch24.MapMode = "FlatFace"
sketch24.AttachmentOffset = App.Placement(V(0, 0, -10), App.Rotation())
add_polygon(sketch24, [(-4.8, -13.75), (1.7, -13.75), (1.7, -8.75), (1.4, -8.75), (-1.1, -11.25), (-3.3, -11.25)])  # lines 0-5
sketch24.addGeometry(Part.LineSegment(V(1.7, -13.75, 0), V(-4.8, -13.75, 0)), True)  # axis
sketch24.addConstraint(Sketcher.Constraint("Horizontal", 0))
sketch24.addConstraint(Sketcher.Constraint("Vertical", 1))
sketch24.addConstraint(Sketcher.Constraint("Horizontal", 2))
sketch24.addConstraint(Sketcher.Constraint("Horizontal", 4))
sketch24.addConstraint(Sketcher.Constraint("Horizontal", 6))
sketch24.addConstraint(Sketcher.Constraint("Coincident", 6, 1, 0, 2))
sketch24.addConstraint(Sketcher.Constraint("Equal", 0, 6))
sketch24.addConstraint(Sketcher.Constraint("DistanceY", 1, 1, 1, 2, Q("5 mm")))
sketch24.addConstraint(Sketcher.Constraint("Angle", 3, Q("-135 deg")))
sketch24.addConstraint(Sketcher.Constraint("Angle", 5, Q("-121 deg")))
sketch24.addConstraint(Sketcher.Constraint("DistanceX", 2, 2, 2, 1, Q("0.3 mm")))
sketch24.addConstraint(Sketcher.Constraint("DistanceX", 4, 2, 4, 1, Q("2.2 mm")))
sketch24.addConstraint(Sketcher.Constraint("DistanceX", 4, 2, 0, 2, Q("5 mm")))
sketch24.addConstraint(Sketcher.Constraint("DistanceX", -1, 1, 0, 2, Q("1.7 mm")))
sketch24.addConstraint(Sketcher.Constraint("DistanceY", 0, 2, -1, 1, Q("13.75 mm")))
groove = body.newObject("PartDesign::Groove", "Groove")
groove.Profile = sketch24
groove.ReferenceAxis = (sketch24, ["Axis0"])
groove.Angle = 360
doc.recompute()

linearpattern = body.newObject("PartDesign::LinearPattern", "LinearPattern")
linearpattern.Originals = [groove]
linearpattern.Direction = (doc.getObject("X_Axis"), [""])
linearpattern.Mode = "offset"
linearpattern.Offset = 20
linearpattern.Occurrences = 2
body.Tip = linearpattern
doc.recompute()

datumline = body.newObject("PartDesign::Line", "DatumLine")
datumline.Placement = App.Placement(V(0, 0, 0), App.Rotation(V(0, 0, 1), V(0.588171698, 0, 0.808736084)))
linearpattern2 = body.newObject("PartDesign::LinearPattern", "LinearPattern001")
linearpattern2.Originals = [groove]
linearpattern2.Direction = (datumline, [""])
linearpattern2.Mode = "offset"
linearpattern2.Offset = 34.003676
linearpattern2.Occurrences = 2
body.Tip = linearpattern2
doc.recompute()

linearpattern3 = body.newObject("PartDesign::LinearPattern", "LinearPattern002")
linearpattern3.Originals = [groove]
linearpattern3.Direction = (doc.getObject("Z_Axis"), [""])
linearpattern3.Mode = "offset"
linearpattern3.Offset = 27.5
linearpattern3.Occurrences = 2
body.Tip = linearpattern3

# Sketch on YZ plane
sketch25 = body.newObject("Sketcher::SketchObject", "Sketch024")
sketch25.AttachmentSupport = (doc.getObject("YZ_Plane"), [""])
sketch25.MapMode = "FlatFace"
sketch25.AttachmentOffset = App.Placement(V(0, 0, 48.150601), App.Rotation())
add_polygon(sketch25, [(-4.05, 19.64), (1.7, 19.64), (1.7, 22.14), (1.4, 22.14), (0.15, 20.89), (-3.3, 20.89)])  # lines 0-5
sketch25.addGeometry(Part.LineSegment(V(1.7, 19.64, 0), V(-4.05, 19.64, 0)), True)  # axis
sketch25.addConstraint(Sketcher.Constraint("Horizontal", 0))
sketch25.addConstraint(Sketcher.Constraint("Vertical", 1))
sketch25.addConstraint(Sketcher.Constraint("Horizontal", 2))
sketch25.addConstraint(Sketcher.Constraint("Horizontal", 4))
sketch25.addConstraint(Sketcher.Constraint("Horizontal", 6))
sketch25.addConstraint(Sketcher.Constraint("Coincident", 6, 1, 0, 2))
sketch25.addConstraint(Sketcher.Constraint("Equal", 0, 6))
sketch25.addConstraint(Sketcher.Constraint("Angle", 3, Q("-135 deg")))
sketch25.addConstraint(Sketcher.Constraint("Angle", 5, Q("-121 deg")))
sketch25.addConstraint(Sketcher.Constraint("DistanceX", 2, 2, 2, 1, Q("0.3 mm")))
sketch25.addConstraint(Sketcher.Constraint("DistanceY", 1, 1, 1, 2, Q("2.5 mm")))
sketch25.addConstraint(Sketcher.Constraint("DistanceX", 4, 2, 0, 2, Q("5 mm")))
sketch25.addConstraint(Sketcher.Constraint("DistanceX", 4, 2, 4, 1, Q("3.45 mm")))
sketch25.addConstraint(Sketcher.Constraint("DistanceX", -1, 1, 0, 2, Q("1.7 mm")))
sketch25.addConstraint(Sketcher.Constraint("DistanceY", -1, 1, 0, 2, Q("19.64 mm")))
groove2 = body.newObject("PartDesign::Groove", "Groove001")
groove2.Profile = sketch25
groove2.ReferenceAxis = (sketch25, ["Axis0"])
groove2.Angle = 360
doc.recompute()

linearpattern4 = body.newObject("PartDesign::LinearPattern", "LinearPattern003")
linearpattern4.Originals = [groove2]
linearpattern4.Direction = (doc.getObject("X_Axis"), [""])
linearpattern4.Mode = "offset"
linearpattern4.Offset = 17.78
linearpattern4.Occurrences = 2
body.Tip = linearpattern4
doc.recompute()

datumline2 = body.newObject("PartDesign::Line", "DatumLine001")
datumline2.Placement = App.Placement(V(0, 0, 0), App.Rotation(V(0, 0, 1), V(0.362446261, 0, 0.932004672)))
linearpattern5 = body.newObject("PartDesign::LinearPattern", "LinearPattern004")
linearpattern5.Originals = [groove2]
linearpattern5.Direction = (datumline2, [""])
linearpattern5.Mode = "offset"
linearpattern5.Offset = 49.055548
linearpattern5.Occurrences = 2
body.Tip = linearpattern5
doc.recompute()

linearpattern6 = body.newObject("PartDesign::LinearPattern", "LinearPattern005")
linearpattern6.Originals = [groove2]
linearpattern6.Direction = (doc.getObject("Z_Axis"), [""])
linearpattern6.Mode = "offset"
linearpattern6.Offset = 45.72
linearpattern6.Occurrences = 2
body.Tip = linearpattern6
doc.recompute()

fillet = body.newObject("PartDesign::Fillet", "Fillet")
fillet.Base = (linearpattern6, edges_at(linearpattern6, [(-45.041, 0.85, 69.5), (45.041, 0.85, 69.5)]))
fillet.Radius = 8.5

doc.recompute()
